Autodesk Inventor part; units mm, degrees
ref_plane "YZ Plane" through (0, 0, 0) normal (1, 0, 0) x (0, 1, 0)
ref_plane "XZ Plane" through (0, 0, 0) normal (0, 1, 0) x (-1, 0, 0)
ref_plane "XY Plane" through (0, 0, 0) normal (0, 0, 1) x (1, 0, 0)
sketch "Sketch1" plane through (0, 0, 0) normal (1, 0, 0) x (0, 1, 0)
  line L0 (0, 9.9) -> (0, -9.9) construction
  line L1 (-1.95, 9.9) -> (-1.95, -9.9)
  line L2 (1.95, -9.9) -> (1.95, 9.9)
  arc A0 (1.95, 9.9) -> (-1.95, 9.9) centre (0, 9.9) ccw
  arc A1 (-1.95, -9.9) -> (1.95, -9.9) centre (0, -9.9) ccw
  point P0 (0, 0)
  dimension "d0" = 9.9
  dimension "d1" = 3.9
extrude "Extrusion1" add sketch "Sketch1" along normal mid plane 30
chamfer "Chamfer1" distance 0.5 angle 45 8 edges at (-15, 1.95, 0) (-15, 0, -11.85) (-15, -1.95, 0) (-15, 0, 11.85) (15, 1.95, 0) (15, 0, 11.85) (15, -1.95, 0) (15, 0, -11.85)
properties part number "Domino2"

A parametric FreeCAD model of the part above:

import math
import FreeCAD as App
import Part
import Sketcher

V = App.Vector
Q = App.Units.Quantity


def edges_at(feature, points):
    """Names of the edges that pass closest to the given points."""
    edges = feature.Shape.Edges
    near = lambda p: min(range(len(edges)), key=lambda i: edges[i].distToShape(Part.Vertex(*p))[0])
    return sorted({f"Edge{near(p) + 1}" for p in points})

doc = App.newDocument("Part")
params = doc.addObject("Spreadsheet::Sheet", "Params")
for row, (alias, value) in enumerate([
    ("sketch1_radius", "1.95 mm"),
    ("pad1_length", "30 mm"),
    ("chamfer_size", "0.5 mm"),
], start=1):
    params.set(f"A{row}", alias)
    params.set(f"B{row}", "=" + value)
    params.setAlias(f"B{row}", alias)

body = doc.addObject("PartDesign::Body", "Body")

sketch1 = doc.addObject("Sketcher::SketchObject", "Sketch")
body.addObject(sketch1)
sketch1.AttachmentSupport = (doc.YZ_Plane, [""])
sketch1.MapMode = "FlatFace"
sketch1.addGeometry([
    Part.ArcOfCircle(Part.Circle(V(0, 9.9, 0), V(0, 0, 1), 1.95), math.radians(0), math.radians(180)),
    Part.LineSegment(V(-1.95, 9.9, 0), V(-1.95, -9.9, 0)),
    Part.ArcOfCircle(Part.Circle(V(0, -9.9, 0), V(0, 0, 1), 1.95), math.radians(180), math.radians(360)),
    Part.LineSegment(V(1.95, -9.9, 0), V(1.95, 9.9, 0)),
], False)
sketch1.addConstraint([
    Sketcher.Constraint("Tangent", 0, 2, 1, 1),
    Sketcher.Constraint("Tangent", 1, 2, 2, 1),
    Sketcher.Constraint("Tangent", 2, 2, 3, 1),
    Sketcher.Constraint("Tangent", 3, 2, 0, 1),
    Sketcher.Constraint("Vertical", 1),
    Sketcher.Constraint("Vertical", 3),
    Sketcher.Constraint("Symmetric", 0, 3, 2, 3, -1, 1),
    Sketcher.Constraint("Radius", 0, Q("1.95 mm")),
    Sketcher.Constraint("DistanceY", -1, 1, 0, 3, Q("9.9 mm")),
])
sketch1.setExpression("Constraints[7]", "Params.sketch1_radius")
pad1 = doc.addObject("PartDesign::Pad", "Pad")
body.addObject(pad1)
pad1.Profile = sketch1
pad1.setExpression("Length", "Params.pad1_length")
pad1.Midplane = True
doc.recompute()

chamfer = doc.addObject("PartDesign::Chamfer", "Chamfer")
body.addObject(chamfer)
chamfer.Base = (pad1, edges_at(pad1, [
    (-15, 1.95, 0),
    (-15, 0, -11.85),
    (-15, -1.95, 0),
    (-15, 0, 11.85),
    (15, 1.95, 0),
    (15, 0, 11.85),
    (15, -1.95, 0),
    (15, 0, -11.85),
]))
chamfer.setExpression("Size", "Params.chamfer_size")

doc.recompute()
